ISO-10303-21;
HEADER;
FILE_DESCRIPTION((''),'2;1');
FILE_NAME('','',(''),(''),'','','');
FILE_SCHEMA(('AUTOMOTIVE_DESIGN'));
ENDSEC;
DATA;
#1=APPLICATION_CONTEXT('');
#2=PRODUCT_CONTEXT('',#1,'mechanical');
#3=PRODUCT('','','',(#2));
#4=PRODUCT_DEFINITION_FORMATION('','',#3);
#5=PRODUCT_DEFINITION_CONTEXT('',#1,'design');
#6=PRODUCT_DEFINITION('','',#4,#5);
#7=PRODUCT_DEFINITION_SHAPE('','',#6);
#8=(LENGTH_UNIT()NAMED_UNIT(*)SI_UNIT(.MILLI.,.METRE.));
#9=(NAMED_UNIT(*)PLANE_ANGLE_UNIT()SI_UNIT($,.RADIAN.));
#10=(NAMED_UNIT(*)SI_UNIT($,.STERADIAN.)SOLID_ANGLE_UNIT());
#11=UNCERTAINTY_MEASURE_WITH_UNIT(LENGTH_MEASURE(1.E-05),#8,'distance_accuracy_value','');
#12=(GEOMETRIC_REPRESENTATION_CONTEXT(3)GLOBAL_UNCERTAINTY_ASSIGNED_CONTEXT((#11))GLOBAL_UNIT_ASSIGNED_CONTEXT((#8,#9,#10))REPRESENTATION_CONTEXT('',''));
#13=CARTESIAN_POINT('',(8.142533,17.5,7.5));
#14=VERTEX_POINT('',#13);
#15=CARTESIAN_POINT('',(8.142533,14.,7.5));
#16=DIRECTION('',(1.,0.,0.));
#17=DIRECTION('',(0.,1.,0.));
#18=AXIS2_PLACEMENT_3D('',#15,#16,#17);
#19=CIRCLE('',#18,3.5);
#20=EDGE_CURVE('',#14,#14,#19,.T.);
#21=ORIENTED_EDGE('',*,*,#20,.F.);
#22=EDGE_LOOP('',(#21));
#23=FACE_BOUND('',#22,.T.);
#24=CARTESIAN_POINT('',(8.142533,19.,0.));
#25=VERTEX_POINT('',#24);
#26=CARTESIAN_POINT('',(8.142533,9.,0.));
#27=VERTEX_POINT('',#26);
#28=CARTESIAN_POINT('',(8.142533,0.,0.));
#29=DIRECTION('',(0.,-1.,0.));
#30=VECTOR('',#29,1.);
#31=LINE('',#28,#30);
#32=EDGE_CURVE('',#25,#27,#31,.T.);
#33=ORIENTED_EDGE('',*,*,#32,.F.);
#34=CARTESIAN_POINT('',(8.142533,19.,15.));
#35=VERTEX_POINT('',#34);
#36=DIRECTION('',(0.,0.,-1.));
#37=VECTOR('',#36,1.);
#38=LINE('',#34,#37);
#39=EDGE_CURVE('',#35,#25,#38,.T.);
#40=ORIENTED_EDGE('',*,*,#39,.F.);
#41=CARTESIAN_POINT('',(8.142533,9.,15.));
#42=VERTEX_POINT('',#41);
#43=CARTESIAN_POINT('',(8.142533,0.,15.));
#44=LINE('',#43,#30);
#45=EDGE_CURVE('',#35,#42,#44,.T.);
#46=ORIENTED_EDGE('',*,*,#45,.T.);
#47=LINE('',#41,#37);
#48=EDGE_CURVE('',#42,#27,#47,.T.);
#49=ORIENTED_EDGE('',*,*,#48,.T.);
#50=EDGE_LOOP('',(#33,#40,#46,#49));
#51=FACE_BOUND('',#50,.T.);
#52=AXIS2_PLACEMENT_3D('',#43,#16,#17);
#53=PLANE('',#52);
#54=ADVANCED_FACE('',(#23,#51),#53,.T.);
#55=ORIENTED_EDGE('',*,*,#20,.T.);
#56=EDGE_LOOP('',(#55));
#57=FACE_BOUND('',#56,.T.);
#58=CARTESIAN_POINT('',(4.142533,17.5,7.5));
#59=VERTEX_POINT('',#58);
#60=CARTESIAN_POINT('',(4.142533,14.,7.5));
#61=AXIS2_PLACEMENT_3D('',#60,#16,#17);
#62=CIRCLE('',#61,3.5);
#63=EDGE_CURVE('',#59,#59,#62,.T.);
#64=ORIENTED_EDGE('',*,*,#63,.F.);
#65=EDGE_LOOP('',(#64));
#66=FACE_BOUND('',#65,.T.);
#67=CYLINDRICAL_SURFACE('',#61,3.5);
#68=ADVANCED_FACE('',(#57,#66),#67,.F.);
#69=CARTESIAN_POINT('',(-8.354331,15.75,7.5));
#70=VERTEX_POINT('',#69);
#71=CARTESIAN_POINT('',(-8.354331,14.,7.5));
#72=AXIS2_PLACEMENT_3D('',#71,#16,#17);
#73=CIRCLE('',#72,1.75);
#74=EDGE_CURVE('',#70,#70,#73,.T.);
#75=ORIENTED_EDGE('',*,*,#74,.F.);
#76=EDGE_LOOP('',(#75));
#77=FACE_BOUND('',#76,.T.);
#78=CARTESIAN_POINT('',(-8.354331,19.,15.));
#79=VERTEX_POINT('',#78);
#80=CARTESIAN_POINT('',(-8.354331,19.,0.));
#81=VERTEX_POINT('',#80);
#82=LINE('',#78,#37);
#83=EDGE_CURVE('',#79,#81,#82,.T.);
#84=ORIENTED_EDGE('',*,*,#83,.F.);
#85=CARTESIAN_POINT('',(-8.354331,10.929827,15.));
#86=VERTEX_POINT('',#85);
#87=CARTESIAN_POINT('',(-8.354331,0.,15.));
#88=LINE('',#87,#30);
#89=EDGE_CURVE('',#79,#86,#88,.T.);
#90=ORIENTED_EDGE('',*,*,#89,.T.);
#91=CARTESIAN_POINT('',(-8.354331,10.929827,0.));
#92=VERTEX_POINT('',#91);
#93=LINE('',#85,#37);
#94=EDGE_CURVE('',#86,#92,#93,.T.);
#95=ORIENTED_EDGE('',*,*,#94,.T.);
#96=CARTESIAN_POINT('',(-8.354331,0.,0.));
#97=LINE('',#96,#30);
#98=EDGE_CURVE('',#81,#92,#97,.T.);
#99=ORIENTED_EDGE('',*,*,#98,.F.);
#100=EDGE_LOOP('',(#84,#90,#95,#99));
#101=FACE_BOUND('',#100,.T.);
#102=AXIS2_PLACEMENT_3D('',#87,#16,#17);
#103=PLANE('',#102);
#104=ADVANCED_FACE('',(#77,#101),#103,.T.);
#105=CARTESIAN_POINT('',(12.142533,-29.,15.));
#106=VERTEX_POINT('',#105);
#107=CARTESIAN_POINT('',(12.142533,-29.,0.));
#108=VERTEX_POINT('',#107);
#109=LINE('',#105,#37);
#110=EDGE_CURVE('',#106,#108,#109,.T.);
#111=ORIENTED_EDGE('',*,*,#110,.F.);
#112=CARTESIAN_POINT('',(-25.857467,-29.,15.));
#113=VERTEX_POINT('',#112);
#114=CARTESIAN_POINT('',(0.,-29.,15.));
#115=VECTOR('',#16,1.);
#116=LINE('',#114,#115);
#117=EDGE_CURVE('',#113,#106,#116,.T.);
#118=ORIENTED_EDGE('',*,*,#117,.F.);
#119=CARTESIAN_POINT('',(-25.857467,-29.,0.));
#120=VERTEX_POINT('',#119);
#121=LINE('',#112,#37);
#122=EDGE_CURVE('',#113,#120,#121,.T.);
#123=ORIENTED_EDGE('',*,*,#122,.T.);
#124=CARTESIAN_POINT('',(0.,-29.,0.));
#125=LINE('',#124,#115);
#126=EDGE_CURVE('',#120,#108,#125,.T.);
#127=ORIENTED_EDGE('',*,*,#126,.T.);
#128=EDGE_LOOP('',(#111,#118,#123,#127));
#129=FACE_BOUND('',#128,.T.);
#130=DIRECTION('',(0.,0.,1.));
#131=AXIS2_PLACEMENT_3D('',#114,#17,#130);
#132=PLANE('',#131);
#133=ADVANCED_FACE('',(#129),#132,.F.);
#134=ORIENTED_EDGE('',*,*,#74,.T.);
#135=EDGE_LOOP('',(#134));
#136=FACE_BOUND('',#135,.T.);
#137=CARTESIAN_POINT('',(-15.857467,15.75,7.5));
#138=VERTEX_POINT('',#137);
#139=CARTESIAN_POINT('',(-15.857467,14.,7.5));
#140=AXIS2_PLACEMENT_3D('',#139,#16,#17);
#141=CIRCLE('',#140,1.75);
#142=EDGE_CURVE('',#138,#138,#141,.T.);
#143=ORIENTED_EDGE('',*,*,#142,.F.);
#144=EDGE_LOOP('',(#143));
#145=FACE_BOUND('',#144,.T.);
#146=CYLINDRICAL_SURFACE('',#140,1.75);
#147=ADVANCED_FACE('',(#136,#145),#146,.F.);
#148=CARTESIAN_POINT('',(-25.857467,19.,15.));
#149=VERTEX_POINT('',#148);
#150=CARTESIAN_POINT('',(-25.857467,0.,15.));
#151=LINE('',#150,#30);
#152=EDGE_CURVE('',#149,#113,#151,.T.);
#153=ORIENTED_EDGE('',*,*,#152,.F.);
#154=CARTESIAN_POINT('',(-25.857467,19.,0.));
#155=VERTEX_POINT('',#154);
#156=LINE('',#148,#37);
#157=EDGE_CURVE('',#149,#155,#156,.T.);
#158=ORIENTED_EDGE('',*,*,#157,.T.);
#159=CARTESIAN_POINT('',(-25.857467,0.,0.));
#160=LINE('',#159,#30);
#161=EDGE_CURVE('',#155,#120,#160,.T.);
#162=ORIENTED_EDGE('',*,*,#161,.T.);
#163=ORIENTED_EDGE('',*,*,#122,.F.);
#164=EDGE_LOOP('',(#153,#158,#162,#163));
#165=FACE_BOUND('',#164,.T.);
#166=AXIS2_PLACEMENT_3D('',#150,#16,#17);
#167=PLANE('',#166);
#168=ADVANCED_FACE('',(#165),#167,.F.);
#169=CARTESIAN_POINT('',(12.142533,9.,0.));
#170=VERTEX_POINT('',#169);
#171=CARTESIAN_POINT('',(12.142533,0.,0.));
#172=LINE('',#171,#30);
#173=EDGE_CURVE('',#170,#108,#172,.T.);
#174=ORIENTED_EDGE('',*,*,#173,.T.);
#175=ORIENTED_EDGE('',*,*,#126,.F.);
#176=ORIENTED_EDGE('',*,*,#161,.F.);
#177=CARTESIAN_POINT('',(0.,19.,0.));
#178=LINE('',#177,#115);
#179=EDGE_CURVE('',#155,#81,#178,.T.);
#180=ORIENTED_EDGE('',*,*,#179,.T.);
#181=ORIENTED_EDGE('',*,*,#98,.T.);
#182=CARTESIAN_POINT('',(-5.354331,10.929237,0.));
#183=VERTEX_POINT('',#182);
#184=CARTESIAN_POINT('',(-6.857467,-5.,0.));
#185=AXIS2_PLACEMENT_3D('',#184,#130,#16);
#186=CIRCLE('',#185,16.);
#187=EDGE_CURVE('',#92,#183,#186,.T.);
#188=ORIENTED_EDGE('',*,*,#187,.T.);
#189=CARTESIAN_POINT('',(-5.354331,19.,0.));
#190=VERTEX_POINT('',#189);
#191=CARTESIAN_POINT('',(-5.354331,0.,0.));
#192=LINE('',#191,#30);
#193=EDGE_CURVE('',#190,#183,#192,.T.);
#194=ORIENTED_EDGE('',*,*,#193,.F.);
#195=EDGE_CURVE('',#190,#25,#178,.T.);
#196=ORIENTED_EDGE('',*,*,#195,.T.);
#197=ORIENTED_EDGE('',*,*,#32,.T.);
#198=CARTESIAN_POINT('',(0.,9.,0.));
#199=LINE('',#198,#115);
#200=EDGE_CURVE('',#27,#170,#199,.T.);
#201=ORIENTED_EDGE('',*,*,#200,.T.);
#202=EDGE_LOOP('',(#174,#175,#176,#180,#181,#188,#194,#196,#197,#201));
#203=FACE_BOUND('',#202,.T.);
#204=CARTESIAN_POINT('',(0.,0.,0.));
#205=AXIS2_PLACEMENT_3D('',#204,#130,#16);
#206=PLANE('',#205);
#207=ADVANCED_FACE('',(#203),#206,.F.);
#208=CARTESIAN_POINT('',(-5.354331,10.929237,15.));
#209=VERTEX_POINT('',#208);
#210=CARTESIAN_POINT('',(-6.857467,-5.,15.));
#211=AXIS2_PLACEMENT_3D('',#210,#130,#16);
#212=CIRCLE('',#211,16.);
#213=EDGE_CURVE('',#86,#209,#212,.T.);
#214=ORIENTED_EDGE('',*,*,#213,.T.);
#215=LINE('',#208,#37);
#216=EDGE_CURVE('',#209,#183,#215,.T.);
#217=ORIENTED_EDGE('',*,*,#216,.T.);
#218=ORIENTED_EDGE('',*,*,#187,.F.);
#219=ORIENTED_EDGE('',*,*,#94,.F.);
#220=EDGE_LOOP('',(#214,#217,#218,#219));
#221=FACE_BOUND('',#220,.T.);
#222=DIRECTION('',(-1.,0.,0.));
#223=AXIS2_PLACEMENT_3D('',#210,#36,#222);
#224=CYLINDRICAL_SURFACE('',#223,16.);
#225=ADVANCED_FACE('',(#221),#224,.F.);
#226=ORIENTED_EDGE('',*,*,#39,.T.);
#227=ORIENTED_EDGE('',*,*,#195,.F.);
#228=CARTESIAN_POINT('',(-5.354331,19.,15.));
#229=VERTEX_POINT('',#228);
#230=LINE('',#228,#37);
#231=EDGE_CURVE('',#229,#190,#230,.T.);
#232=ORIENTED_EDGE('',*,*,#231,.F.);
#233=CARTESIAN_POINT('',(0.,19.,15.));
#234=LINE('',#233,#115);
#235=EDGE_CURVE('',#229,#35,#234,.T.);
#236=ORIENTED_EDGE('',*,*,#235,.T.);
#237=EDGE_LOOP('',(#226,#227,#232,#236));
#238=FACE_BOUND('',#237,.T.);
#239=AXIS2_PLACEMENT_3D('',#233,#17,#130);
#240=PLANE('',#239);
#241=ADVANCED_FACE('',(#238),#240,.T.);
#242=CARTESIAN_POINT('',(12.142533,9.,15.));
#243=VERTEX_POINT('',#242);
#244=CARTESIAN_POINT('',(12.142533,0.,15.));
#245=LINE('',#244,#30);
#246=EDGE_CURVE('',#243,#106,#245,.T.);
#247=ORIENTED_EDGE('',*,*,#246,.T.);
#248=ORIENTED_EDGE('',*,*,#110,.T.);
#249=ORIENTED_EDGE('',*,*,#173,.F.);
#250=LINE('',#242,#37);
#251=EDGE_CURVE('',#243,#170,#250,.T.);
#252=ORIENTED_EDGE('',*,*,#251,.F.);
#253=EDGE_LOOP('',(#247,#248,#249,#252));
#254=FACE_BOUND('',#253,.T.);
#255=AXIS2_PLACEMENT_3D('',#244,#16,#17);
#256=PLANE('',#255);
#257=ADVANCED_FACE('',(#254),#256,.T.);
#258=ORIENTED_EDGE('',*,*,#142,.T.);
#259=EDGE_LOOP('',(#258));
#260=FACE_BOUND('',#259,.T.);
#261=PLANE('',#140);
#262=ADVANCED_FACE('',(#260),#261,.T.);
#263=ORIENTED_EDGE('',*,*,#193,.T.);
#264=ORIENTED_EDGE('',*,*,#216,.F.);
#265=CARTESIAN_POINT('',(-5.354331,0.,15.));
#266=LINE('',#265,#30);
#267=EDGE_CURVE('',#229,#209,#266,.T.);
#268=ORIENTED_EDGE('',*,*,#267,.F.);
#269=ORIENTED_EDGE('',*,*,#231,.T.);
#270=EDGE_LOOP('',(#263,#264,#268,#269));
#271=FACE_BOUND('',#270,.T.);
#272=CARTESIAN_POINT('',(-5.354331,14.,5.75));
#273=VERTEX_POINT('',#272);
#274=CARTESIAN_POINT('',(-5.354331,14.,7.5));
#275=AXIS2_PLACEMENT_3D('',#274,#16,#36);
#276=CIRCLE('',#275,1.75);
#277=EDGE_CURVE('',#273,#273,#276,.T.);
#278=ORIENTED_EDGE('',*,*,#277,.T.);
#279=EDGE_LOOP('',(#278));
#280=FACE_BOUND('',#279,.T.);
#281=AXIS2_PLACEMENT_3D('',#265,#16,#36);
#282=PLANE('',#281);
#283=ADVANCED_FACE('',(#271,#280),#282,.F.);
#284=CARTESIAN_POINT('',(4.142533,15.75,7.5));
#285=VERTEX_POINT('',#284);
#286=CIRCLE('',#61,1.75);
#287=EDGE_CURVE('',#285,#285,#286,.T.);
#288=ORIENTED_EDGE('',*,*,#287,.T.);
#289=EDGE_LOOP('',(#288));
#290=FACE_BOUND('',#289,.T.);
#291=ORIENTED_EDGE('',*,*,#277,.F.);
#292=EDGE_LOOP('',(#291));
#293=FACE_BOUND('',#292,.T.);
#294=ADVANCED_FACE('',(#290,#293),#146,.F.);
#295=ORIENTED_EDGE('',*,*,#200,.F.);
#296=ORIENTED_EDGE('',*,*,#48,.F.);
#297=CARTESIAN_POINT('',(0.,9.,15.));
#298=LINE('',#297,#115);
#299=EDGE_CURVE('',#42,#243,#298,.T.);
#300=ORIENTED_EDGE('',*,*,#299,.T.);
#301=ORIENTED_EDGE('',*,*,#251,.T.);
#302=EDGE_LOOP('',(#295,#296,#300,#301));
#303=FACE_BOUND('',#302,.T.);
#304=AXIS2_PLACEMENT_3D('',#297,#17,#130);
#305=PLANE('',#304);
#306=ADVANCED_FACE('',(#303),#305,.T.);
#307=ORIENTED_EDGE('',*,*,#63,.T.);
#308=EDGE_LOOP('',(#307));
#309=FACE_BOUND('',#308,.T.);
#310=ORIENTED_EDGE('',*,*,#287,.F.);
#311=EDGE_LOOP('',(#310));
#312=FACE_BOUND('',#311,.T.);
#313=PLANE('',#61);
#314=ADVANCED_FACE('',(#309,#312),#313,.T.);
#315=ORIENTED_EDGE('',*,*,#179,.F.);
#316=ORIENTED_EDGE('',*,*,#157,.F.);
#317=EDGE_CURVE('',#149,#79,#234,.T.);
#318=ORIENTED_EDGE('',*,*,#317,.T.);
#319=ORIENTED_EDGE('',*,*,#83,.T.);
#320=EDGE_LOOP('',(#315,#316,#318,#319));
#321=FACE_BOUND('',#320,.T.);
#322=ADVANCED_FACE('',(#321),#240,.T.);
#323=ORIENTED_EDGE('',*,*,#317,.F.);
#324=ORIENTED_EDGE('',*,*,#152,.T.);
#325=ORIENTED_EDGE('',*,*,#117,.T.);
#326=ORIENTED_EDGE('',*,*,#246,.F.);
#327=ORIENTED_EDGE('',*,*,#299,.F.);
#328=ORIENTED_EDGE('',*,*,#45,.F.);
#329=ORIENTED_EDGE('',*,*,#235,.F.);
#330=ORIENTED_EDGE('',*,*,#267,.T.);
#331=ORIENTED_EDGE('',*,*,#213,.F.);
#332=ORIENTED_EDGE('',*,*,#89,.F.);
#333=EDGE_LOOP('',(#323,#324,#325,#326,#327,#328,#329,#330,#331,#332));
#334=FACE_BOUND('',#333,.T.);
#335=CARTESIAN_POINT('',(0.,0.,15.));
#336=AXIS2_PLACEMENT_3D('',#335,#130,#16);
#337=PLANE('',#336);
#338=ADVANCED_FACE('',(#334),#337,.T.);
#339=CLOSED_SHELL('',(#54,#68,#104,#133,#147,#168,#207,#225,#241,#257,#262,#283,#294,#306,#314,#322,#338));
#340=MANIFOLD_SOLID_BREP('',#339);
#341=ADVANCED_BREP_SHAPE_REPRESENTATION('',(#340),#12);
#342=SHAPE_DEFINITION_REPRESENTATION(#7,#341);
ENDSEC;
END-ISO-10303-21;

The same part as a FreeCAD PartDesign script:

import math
import FreeCAD as App
import Part
import Sketcher

doc = App.newDocument("Part")
body = doc.addObject("PartDesign::Body", "Body")

# Sketch on XY plane
sketch1 = body.newObject("Sketcher::SketchObject", "Sketch")
sketch1.AttachmentSupport = (doc.getObject("XY_Plane"), [""])
sketch1.MapMode = "FlatFace"
sketch1.addGeometry([
    Part.LineSegment(App.Vector(8.142533, 9, 0), App.Vector(8.142533, 19, 0)),  # 0
    Part.LineSegment(App.Vector(8.142533, 19, 0), App.Vector(-5.354331, 19, 0)),  # 1
    Part.LineSegment(App.Vector(-5.354331, 19, 0), App.Vector(-5.354331, 10.929237, 0)),  # 2
    Part.ArcOfCircle(Part.Circle(App.Vector(-6.857467, -5, 0), App.Vector(0, 0, 1), 16), math.radians(0), math.radians(84.609341)),  # 3
    Part.ArcOfCircle(Part.Circle(App.Vector(-6.857467, -5, 0), App.Vector(0, 0, 1), 16), math.radians(95.368099), math.radians(360)),  # 4
    Part.LineSegment(App.Vector(-8.354331, 10.929827, 0), App.Vector(-8.354331, 19, 0)),  # 5
    Part.LineSegment(App.Vector(-8.354331, 19, 0), App.Vector(-25.857467, 19, 0)),  # 6
    Part.LineSegment(App.Vector(-25.857467, 19, 0), App.Vector(-25.857467, -29, 0)),  # 7
    Part.LineSegment(App.Vector(-25.857467, -29, 0), App.Vector(12.142533, -29, 0)),  # 8
    Part.LineSegment(App.Vector(12.142533, -29, 0), App.Vector(12.142533, 9, 0)),  # 9
    Part.LineSegment(App.Vector(12.142533, 9, 0), App.Vector(8.142533, 9, 0)),  # 10
], False)
sketch1.addConstraint([
    Sketcher.Constraint("Coincident", 0, 2, 1, 1),
    Sketcher.Constraint("Coincident", 1, 2, 2, 1),
    Sketcher.Constraint("Coincident", 2, 2, 3, 2),
    Sketcher.Constraint("Tangent", 3, 1, 4, 2),
    Sketcher.Constraint("Coincident", 4, 1, 5, 1),
    Sketcher.Constraint("Coincident", 5, 2, 6, 1),
    Sketcher.Constraint("Coincident", 6, 2, 7, 1),
    Sketcher.Constraint("Coincident", 7, 2, 8, 1),
    Sketcher.Constraint("Coincident", 8, 2, 9, 1),
    Sketcher.Constraint("Coincident", 9, 2, 10, 1),
    Sketcher.Constraint("Coincident", 10, 2, 0, 1),
    Sketcher.Constraint("Vertical", 0),
    Sketcher.Constraint("Horizontal", 1),
    Sketcher.Constraint("Vertical", 2),
    Sketcher.Constraint("Vertical", 5),
    Sketcher.Constraint("Horizontal", 6),
    Sketcher.Constraint("Vertical", 7),
    Sketcher.Constraint("Horizontal", 8),
    Sketcher.Constraint("Vertical", 9),
    Sketcher.Constraint("Horizontal", 10),
    Sketcher.Constraint("Equal", 3, 4),
    Sketcher.Constraint("Horizontal", 4, 3, 3, 1),
    Sketcher.Constraint("Horizontal", 1, 2, 5, 2),
    Sketcher.Constraint("Equal", 8, 9),
    Sketcher.Constraint("Radius", 3, 16.0),
    Sketcher.Constraint("DistanceX", 8, 1, 8, 2, 38.0),
    Sketcher.Constraint("DistanceX", 10, 2, 10, 1, 4.0),
    Sketcher.Constraint("DistanceY", 0, 1, 0, 2, 10.0),
    Sketcher.Constraint("DistanceY", 3, 3, -1, 1, 5.0),
    Sketcher.Constraint("DistanceY", -1, 1, 0, 2, 19.0),
    Sketcher.Constraint("DistanceX", 3, 3, 0, 2, 15.0),
    Sketcher.Constraint("DistanceX", 4, 1, 2, 2, 3.0),
    Sketcher.Constraint("DistanceX", 1, 2, 1, 1, 13.496864),
    Sketcher.Constraint("DistanceX", 1, 2, -1, 1, 5.354331),
])
pad1 = body.newObject("PartDesign::Pad", "Pad")
pad1.Profile = sketch1
pad1.Length = 15

# Sketch on YZ plane
sketch2 = body.newObject("Sketcher::SketchObject", "Sketch001")
sketch2.AttachmentSupport = (doc.getObject("YZ_Plane"), [""])
sketch2.MapMode = "FlatFace"
sketch2.AttachmentOffset = App.Placement(App.Vector(0, 0, 8.142533), App.Rotation())
sketch2.addGeometry(Part.Circle(App.Vector(14, 7.5, 0), App.Vector(0, 0, 1), 3.5), False)
sketch2.addConstraint([
    Sketcher.Constraint("Diameter", 0, 7.0),
    Sketcher.Constraint("DistanceX", -1, 1, 0, 3, 14.0),
    Sketcher.Constraint("DistanceY", -1, 1, 0, 3, 7.5),
])
pocket1 = body.newObject("PartDesign::Pocket", "Pocket")
pocket1.Profile = sketch2
pocket1.Length = 4

# Sketch on YZ plane
sketch3 = body.newObject("Sketcher::SketchObject", "Sketch002")
sketch3.AttachmentSupport = (doc.getObject("YZ_Plane"), [""])
sketch3.MapMode = "FlatFace"
sketch3.AttachmentOffset = App.Placement(App.Vector(0, 0, 4.142533), App.Rotation())
sketch3.addGeometry(Part.Circle(App.Vector(14, 7.5, 0), App.Vector(0, 0, 1), 1.75), False)
sketch3.addConstraint([
    Sketcher.Constraint("Diameter", 0, 3.5),
    Sketcher.Constraint("DistanceX", -1, 1, 0, 3, 14.0),
    Sketcher.Constraint("DistanceY", -1, 1, 0, 3, 7.5),
])
pocket2 = body.newObject("PartDesign::Pocket", "Pocket001")
pocket2.Profile = sketch3
pocket2.Length = 20

doc.recompute()
